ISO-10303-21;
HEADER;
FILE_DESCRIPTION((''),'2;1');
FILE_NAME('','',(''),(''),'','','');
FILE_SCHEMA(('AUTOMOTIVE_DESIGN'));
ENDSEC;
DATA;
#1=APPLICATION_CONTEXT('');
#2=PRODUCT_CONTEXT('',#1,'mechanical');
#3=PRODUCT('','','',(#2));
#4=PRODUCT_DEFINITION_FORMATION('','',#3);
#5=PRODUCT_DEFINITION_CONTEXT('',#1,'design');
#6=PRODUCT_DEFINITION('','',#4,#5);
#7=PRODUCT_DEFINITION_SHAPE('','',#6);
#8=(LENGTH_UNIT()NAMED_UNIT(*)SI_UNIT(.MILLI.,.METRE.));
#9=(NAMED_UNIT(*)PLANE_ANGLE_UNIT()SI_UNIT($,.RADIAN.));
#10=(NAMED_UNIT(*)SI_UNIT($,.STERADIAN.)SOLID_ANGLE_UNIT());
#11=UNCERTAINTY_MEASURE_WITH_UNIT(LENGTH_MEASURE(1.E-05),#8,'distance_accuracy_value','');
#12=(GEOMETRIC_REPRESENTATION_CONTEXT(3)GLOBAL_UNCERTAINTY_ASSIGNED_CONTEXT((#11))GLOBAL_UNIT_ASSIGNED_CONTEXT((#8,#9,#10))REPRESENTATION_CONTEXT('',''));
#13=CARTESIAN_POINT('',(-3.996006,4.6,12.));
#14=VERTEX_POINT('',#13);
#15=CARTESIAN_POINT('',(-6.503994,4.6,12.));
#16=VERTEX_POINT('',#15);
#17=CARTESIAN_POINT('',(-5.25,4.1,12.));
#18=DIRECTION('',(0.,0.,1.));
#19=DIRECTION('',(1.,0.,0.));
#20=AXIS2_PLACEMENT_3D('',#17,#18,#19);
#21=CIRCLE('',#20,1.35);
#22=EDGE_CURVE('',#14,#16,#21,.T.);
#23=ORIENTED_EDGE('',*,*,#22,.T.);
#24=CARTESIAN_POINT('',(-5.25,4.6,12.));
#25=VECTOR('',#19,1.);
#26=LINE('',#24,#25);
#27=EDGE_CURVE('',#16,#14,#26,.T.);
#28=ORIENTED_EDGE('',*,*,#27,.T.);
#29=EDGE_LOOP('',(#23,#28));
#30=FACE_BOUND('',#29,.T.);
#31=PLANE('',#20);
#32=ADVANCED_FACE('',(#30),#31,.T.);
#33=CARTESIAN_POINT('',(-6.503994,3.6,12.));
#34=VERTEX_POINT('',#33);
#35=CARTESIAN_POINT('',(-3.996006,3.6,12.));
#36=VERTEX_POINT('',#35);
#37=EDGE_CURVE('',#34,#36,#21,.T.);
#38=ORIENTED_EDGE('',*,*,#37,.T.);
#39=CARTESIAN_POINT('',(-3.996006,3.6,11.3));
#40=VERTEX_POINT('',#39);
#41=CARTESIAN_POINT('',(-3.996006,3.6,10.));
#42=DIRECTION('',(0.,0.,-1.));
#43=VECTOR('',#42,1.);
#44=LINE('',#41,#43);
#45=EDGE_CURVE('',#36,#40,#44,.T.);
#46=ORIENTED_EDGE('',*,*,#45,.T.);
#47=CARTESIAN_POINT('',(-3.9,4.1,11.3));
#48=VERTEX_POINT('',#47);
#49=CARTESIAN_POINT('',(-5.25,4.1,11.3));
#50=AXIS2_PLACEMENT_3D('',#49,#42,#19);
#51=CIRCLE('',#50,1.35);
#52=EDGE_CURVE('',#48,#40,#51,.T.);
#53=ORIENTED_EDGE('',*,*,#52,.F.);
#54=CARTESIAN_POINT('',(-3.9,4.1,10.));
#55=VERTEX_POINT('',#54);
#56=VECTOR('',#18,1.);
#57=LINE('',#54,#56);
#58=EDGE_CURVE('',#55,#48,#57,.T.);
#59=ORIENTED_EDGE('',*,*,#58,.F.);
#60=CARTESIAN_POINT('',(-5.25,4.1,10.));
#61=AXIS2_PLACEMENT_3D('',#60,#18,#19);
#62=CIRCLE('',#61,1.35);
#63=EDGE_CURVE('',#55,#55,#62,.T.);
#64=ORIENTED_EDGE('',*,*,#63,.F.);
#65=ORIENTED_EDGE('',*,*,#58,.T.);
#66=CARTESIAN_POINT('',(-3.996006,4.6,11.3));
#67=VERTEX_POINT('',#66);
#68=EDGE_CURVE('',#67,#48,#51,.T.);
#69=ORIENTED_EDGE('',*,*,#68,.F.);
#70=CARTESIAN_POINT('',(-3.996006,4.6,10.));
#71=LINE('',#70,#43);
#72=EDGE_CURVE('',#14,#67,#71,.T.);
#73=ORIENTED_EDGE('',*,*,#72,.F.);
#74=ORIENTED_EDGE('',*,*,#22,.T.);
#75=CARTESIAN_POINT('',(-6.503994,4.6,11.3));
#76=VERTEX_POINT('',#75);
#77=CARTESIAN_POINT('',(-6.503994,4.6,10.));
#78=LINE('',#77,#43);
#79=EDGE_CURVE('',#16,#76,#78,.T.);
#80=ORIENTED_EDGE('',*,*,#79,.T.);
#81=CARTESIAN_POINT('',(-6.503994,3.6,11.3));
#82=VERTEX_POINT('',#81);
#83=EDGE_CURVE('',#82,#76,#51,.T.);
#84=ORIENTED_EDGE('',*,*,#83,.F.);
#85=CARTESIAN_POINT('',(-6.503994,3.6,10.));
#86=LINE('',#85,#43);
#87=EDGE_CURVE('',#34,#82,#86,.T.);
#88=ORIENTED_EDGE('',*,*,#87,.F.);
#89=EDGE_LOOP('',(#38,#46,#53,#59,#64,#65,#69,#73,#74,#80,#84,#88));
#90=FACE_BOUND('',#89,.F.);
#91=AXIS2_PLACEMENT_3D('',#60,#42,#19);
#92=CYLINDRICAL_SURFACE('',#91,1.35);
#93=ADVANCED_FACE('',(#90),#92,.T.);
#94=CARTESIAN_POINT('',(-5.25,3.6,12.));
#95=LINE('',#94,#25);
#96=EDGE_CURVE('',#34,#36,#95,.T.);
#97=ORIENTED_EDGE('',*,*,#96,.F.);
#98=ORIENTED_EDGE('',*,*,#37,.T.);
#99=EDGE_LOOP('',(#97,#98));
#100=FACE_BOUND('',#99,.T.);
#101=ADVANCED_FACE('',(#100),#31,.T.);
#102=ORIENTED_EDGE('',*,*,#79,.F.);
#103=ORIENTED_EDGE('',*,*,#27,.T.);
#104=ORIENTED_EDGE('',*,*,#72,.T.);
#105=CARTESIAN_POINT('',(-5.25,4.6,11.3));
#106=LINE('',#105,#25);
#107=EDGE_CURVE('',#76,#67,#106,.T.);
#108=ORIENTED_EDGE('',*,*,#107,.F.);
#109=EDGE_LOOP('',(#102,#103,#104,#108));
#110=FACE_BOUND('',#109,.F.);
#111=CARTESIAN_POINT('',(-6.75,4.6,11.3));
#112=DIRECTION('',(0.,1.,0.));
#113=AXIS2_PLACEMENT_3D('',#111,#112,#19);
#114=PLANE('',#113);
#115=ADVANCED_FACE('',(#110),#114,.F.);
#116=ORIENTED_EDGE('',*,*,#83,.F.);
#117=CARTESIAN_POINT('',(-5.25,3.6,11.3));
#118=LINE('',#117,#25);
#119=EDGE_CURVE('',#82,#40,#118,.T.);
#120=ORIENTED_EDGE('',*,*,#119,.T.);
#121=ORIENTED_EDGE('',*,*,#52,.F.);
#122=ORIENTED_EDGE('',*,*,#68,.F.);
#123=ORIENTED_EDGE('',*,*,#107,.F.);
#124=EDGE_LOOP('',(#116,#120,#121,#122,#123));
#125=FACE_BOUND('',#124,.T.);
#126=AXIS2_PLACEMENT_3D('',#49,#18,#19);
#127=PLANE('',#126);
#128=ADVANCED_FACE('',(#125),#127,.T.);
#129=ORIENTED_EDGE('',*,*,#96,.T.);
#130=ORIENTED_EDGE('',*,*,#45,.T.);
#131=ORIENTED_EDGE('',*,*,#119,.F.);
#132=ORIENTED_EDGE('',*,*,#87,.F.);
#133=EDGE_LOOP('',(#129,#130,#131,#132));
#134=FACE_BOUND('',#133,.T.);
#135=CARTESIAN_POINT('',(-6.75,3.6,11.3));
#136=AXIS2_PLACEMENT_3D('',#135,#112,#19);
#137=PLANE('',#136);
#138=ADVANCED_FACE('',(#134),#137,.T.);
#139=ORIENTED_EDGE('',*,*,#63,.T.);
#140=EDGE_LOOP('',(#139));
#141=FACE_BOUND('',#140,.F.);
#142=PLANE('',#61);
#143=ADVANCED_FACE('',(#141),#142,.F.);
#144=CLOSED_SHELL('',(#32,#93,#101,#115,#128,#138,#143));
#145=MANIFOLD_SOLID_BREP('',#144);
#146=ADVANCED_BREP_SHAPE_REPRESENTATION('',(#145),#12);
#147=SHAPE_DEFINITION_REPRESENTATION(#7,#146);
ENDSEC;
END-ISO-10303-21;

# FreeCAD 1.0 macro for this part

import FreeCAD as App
import Part
import Sketcher

V = App.Vector

doc = App.newDocument("Part")
body = doc.addObject("PartDesign::Body", "Body")

sketch1 = body.newObject("Sketcher::SketchObject", "Sketch")
sketch1.AttachmentSupport = (doc.getObject("XY_Plane"), [""])
sketch1.MapMode = "FlatFace"
sketch1.AttachmentOffset = App.Placement(V(0, 0, 1.3), App.Rotation())
sketch1.addGeometry(Part.LineSegment(V(-1.5, 0.5, 0), V(-1.5, -0.5, 0)), False)
sketch1.addGeometry(Part.LineSegment(V(-1.5, -0.5, 0), V(1.5, -0.5, 0)), False)
sketch1.addGeometry(Part.LineSegment(V(1.5, -0.5, 0), V(1.5, 0.5, 0)), False)
sketch1.addGeometry(Part.LineSegment(V(1.5, 0.5, 0), V(-1.5, 0.5, 0)), False)
sketch1.addConstraint(Sketcher.Constraint("Coincident", 0, 2, 1, 1))
sketch1.addConstraint(Sketcher.Constraint("Coincident", 1, 2, 2, 1))
sketch1.addConstraint(Sketcher.Constraint("Coincident", 2, 2, 3, 1))
sketch1.addConstraint(Sketcher.Constraint("Coincident", 3, 2, 0, 1))
sketch1.addConstraint(Sketcher.Constraint("Vertical", 0))
sketch1.addConstraint(Sketcher.Constraint("Horizontal", 1))
sketch1.addConstraint(Sketcher.Constraint("Vertical", 2))
sketch1.addConstraint(Sketcher.Constraint("Horizontal", 3))
sketch1.addConstraint(Sketcher.Constraint("Symmetric", 0, 2, 2, 2, -1, 1))
sketch1.addConstraint(Sketcher.Constraint("DistanceX", 1, 1, 1, 2, 3.0))
sketch1.addConstraint(Sketcher.Constraint("DistanceY", 0, 2, 0, 1, 1.0))
pad1 = body.newObject("PartDesign::Pad", "Pad")
pad1.Profile = sketch1
pad1.Length = 0.7
body2 = doc.addObject("PartDesign::Body", "Body001")

sketch2 = body2.newObject("Sketcher::SketchObject", "Sketch001")
sketch2.AttachmentSupport = (doc.getObject("XY_Plane001"), [""])
sketch2.MapMode = "FlatFace"
sketch2.addGeometry(Part.Circle(V(0, 0, 0), V(0, 0, 1), 1.4), False)
sketch2.addConstraint(Sketcher.Constraint("Coincident", 0, 3, -1, 1))
sketch2.addConstraint(Sketcher.Constraint("Diameter", 0, 2.7))
pad2 = body2.newObject("PartDesign::Pad", "Pad001")
pad2.Profile = sketch2
pad2.Length = 2
doc.recompute()

boolean = body2.newObject("PartDesign::Boolean", "Boolean")
boolean.Type = "Cut"
boolean.addObjects([body])
body3 = doc.addObject("PartDesign::Body", "Body002")
doc.recompute()

body2.Placement = App.Placement(V(-5.25, 4.1, 10), App.Rotation(V(0, 0, 1), 0))
boolean2 = body3.newObject("PartDesign::Boolean", "Boolean001")
boolean2.Type = "Fuse"
boolean2.addObjects([body2])

doc.recompute()
